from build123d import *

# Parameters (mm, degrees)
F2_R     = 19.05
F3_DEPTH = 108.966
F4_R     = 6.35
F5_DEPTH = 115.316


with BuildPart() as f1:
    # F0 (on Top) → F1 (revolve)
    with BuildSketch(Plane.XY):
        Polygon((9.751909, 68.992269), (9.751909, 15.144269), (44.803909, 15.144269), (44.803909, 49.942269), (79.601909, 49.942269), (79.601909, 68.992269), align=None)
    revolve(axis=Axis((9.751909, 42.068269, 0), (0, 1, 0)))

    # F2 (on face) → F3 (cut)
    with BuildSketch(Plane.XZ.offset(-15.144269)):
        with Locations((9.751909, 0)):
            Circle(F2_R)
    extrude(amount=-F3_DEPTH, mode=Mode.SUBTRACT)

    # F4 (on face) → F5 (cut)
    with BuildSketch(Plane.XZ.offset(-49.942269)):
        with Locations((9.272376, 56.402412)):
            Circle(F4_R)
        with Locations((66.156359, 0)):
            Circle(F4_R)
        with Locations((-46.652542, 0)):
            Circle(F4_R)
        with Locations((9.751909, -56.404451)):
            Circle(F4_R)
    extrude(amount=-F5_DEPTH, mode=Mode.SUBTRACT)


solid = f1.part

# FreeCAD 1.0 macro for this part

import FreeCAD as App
import Part
import Sketcher

V = App.Vector
Q = App.Units.Quantity

doc = App.newDocument("Part")
params = doc.addObject("Spreadsheet::Sheet", "Params")
for row, (alias, value) in enumerate([
    ("sketch1_width", "1.38 in"),
    ("sketch1_width2", "1.37 in"),
    ("sketch1_height", "2.12 in"),
    ("revolution_angle", "360 deg"),
    ("sketch2_diameter", "1.5 in"),
    ("pocket1_length", "4.29 in"),
    ("sketch3_diameter", "0.5 in"),
    ("pocket2_length", "4.54 in"),
], start=1):
    params.set(f"A{row}", alias)
    params.set(f"B{row}", "=" + value)
    params.setAlias(f"B{row}", alias)

body = doc.addObject("PartDesign::Body", "Body")

# Sketch on XY plane
sketch1 = body.newObject("Sketcher::SketchObject", "Sketch")
sketch1.AttachmentSupport = (doc.getObject("XY_Plane"), [""])
sketch1.MapMode = "FlatFace"
sketch1.addGeometry(Part.LineSegment(V(10, 69, 0), V(10, 15, 0)), False)
sketch1.addGeometry(Part.LineSegment(V(10, 15, 0), V(45, 15, 0)), False)
sketch1.addGeometry(Part.LineSegment(V(45, 15, 0), V(45, 50, 0)), False)
sketch1.addGeometry(Part.LineSegment(V(45, 50, 0), V(80, 50, 0)), False)
sketch1.addGeometry(Part.LineSegment(V(80, 50, 0), V(80, 69, 0)), False)
sketch1.addGeometry(Part.LineSegment(V(80, 69, 0), V(10, 69, 0)), False)
sketch1.addGeometry(Part.LineSegment(V(10, 15, 0), V(10, 69, 0)), True)  # axis
sketch1.addConstraint(Sketcher.Constraint("Coincident", 0, 2, 1, 1))
sketch1.addConstraint(Sketcher.Constraint("Coincident", 1, 2, 2, 1))
sketch1.addConstraint(Sketcher.Constraint("Coincident", 2, 2, 3, 1))
sketch1.addConstraint(Sketcher.Constraint("Coincident", 3, 2, 4, 1))
sketch1.addConstraint(Sketcher.Constraint("Coincident", 4, 2, 5, 1))
sketch1.addConstraint(Sketcher.Constraint("Coincident", 5, 2, 0, 1))
sketch1.addConstraint(Sketcher.Constraint("Vertical", 0))
sketch1.addConstraint(Sketcher.Constraint("Horizontal", 1))
sketch1.addConstraint(Sketcher.Constraint("Vertical", 2))
sketch1.addConstraint(Sketcher.Constraint("Horizontal", 3))
sketch1.addConstraint(Sketcher.Constraint("Vertical", 4))
sketch1.addConstraint(Sketcher.Constraint("Horizontal", 5))
sketch1.addConstraint(Sketcher.Constraint("Vertical", 6))
sketch1.addConstraint(Sketcher.Constraint("Coincident", 6, 1, 0, 2))
sketch1.addConstraint(Sketcher.Constraint("Horizontal", 4, 2, 6, 2))
sketch1.addConstraint(Sketcher.Constraint("Equal", 3, 2))
sketch1.addConstraint(Sketcher.Constraint("DistanceX", 1, 1, 1, 2, Q("1.38 in")))
sketch1.addConstraint(Sketcher.Constraint("DistanceX", 3, 1, 3, 2, Q("1.37 in")))
sketch1.addConstraint(Sketcher.Constraint("DistanceY", 0, 2, 0, 1, Q("2.12 in")))
sketch1.addConstraint(Sketcher.Constraint("DistanceX", -1, 1, 0, 2, Q("9.751909 mm")))
sketch1.addConstraint(Sketcher.Constraint("DistanceY", -1, 1, 0, 2, Q("15.144269 mm")))
sketch1.setExpression("Constraints[16]", "Params.sketch1_width")
sketch1.setExpression("Constraints[17]", "Params.sketch1_width2")
sketch1.setExpression("Constraints[18]", "Params.sketch1_height")
revolution = body.newObject("PartDesign::Revolution", "Revolution")
revolution.Profile = sketch1
revolution.ReferenceAxis = (sketch1, ["Axis0"])
revolution.setExpression("Angle", "Params.revolution_angle")

# Sketch on XZ plane
sketch2 = body.newObject("Sketcher::SketchObject", "Sketch001")
sketch2.AttachmentSupport = (doc.getObject("XZ_Plane"), [""])
sketch2.MapMode = "FlatFace"
sketch2.AttachmentOffset = App.Placement(V(0, 0, -15.144269), App.Rotation())
sketch2.addGeometry(Part.Circle(V(10, 0, 0), V(0, 0, 1), 19), False)
sketch2.addConstraint(Sketcher.Constraint("PointOnObject", 0, 3, -1))
sketch2.addConstraint(Sketcher.Constraint("Diameter", 0, Q("1.5 in")))
sketch2.addConstraint(Sketcher.Constraint("DistanceX", -1, 1, 0, 3, Q("9.751909 mm")))
sketch2.setExpression("Constraints[1]", "Params.sketch2_diameter")
pocket1 = body.newObject("PartDesign::Pocket", "Pocket")
pocket1.Profile = sketch2
pocket1.setExpression("Length", "Params.pocket1_length")

# Sketch on XZ plane
sketch3 = body.newObject("Sketcher::SketchObject", "Sketch002")
sketch3.AttachmentSupport = (doc.getObject("XZ_Plane"), [""])
sketch3.MapMode = "FlatFace"
sketch3.AttachmentOffset = App.Placement(V(0, 0, -49.942269), App.Rotation())
sketch3.addGeometry(Part.Circle(V(9, 56, 0), V(0, 0, 1), 6), False)
sketch3.addGeometry(Part.Circle(V(66, 0, 0), V(0, 0, 1), 6), False)
sketch3.addGeometry(Part.Circle(V(-47, 0, 0), V(0, 0, 1), 6), False)
sketch3.addGeometry(Part.Circle(V(10, -56, 0), V(0, 0, 1), 6), False)
sketch3.addConstraint(Sketcher.Constraint("Equal", 0, 1))
sketch3.addConstraint(Sketcher.Constraint("Equal", 1, 2))
sketch3.addConstraint(Sketcher.Constraint("Equal", 2, 3))
sketch3.addConstraint(Sketcher.Constraint("PointOnObject", 1, 3, -1))
sketch3.addConstraint(Sketcher.Constraint("PointOnObject", 2, 3, -1))
sketch3.addConstraint(Sketcher.Constraint("Diameter", 0, Q("0.5 in")))
sketch3.addConstraint(Sketcher.Constraint("DistanceX", 2, 3, 1, 3, Q("112.808901 mm")))
sketch3.addConstraint(Sketcher.Constraint("DistanceY", -1, 1, 0, 3, Q("56.402412 mm")))
sketch3.addConstraint(Sketcher.Constraint("DistanceX", -1, 1, 1, 3, Q("66.156359 mm")))
sketch3.addConstraint(Sketcher.Constraint("DistanceX", -1, 1, 3, 3, Q("9.751909 mm")))
sketch3.addConstraint(Sketcher.Constraint("DistanceY", 3, 3, -1, 1, Q("56.404451 mm")))
sketch3.addConstraint(Sketcher.Constraint("DistanceX", -1, 1, 0, 3, Q("9.272376 mm")))
sketch3.setExpression("Constraints[5]", "Params.sketch3_diameter")
pocket2 = body.newObject("PartDesign::Pocket", "Pocket001")
pocket2.Profile = sketch3
pocket2.setExpression("Length", "Params.pocket2_length")

doc.recompute()
